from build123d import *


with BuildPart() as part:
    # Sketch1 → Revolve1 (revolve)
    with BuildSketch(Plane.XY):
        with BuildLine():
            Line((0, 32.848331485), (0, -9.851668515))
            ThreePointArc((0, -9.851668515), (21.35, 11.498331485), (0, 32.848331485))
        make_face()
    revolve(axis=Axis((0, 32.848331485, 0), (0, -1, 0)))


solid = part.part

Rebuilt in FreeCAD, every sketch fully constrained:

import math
import FreeCAD as App
import Part
import Sketcher
from FreeCAD import Vector

doc = App.newDocument("Part")
params = doc.addObject("Spreadsheet::Sheet", "Params")
for row, (alias, value) in enumerate([
    ("sketch1_radius", "21.35 mm"),
    ("revolution_angle", "360 deg"),
], start=1):
    params.set(f"A{row}", alias)
    params.set(f"B{row}", "=" + value)
    params.setAlias(f"B{row}", alias)

body = doc.addObject("PartDesign::Body", "Body")

# Sketch on XY plane
sketch1 = doc.addObject("Sketcher::SketchObject", "Sketch")
body.addObject(sketch1)
sketch1.AttachmentSupport = (doc.XY_Plane, [""])
sketch1.MapMode = "FlatFace"
sketch1.addGeometry(Part.LineSegment(Vector(0, 32.848331, 0), Vector(0, -9.851669, 0)), False)
sketch1.addGeometry(Part.ArcOfCircle(Part.Circle(Vector(0, 11.498331, 0), Vector(0, 0, 1), 21.35), math.radians(-90), math.radians(90)), False)
sketch1.addConstraint(Sketcher.Constraint("Coincident", 0, 1, 1, 2))
sketch1.addConstraint(Sketcher.Constraint("Coincident", 1, 1, 0, 2))
sketch1.addConstraint(Sketcher.Constraint("Vertical", 0))
sketch1.addConstraint(Sketcher.Constraint("PointOnObject", 1, 3, -2))
sketch1.addConstraint(Sketcher.Constraint("PointOnObject", 0, 1, -2))
sketch1.addConstraint(Sketcher.Constraint("Radius", 1, 21.35))
sketch1.addConstraint(Sketcher.Constraint("DistanceY", -1, 1, 1, 3, 11.498331))
sketch1.setExpression("Constraints[5]", "Params.sketch1_radius")
revolution = doc.addObject("PartDesign::Revolution", "Revolution")
body.addObject(revolution)
revolution.Profile = sketch1
revolution.ReferenceAxis = (sketch1, ["V_Axis"])
revolution.setExpression("Angle", "Params.revolution_angle")

doc.recompute()
